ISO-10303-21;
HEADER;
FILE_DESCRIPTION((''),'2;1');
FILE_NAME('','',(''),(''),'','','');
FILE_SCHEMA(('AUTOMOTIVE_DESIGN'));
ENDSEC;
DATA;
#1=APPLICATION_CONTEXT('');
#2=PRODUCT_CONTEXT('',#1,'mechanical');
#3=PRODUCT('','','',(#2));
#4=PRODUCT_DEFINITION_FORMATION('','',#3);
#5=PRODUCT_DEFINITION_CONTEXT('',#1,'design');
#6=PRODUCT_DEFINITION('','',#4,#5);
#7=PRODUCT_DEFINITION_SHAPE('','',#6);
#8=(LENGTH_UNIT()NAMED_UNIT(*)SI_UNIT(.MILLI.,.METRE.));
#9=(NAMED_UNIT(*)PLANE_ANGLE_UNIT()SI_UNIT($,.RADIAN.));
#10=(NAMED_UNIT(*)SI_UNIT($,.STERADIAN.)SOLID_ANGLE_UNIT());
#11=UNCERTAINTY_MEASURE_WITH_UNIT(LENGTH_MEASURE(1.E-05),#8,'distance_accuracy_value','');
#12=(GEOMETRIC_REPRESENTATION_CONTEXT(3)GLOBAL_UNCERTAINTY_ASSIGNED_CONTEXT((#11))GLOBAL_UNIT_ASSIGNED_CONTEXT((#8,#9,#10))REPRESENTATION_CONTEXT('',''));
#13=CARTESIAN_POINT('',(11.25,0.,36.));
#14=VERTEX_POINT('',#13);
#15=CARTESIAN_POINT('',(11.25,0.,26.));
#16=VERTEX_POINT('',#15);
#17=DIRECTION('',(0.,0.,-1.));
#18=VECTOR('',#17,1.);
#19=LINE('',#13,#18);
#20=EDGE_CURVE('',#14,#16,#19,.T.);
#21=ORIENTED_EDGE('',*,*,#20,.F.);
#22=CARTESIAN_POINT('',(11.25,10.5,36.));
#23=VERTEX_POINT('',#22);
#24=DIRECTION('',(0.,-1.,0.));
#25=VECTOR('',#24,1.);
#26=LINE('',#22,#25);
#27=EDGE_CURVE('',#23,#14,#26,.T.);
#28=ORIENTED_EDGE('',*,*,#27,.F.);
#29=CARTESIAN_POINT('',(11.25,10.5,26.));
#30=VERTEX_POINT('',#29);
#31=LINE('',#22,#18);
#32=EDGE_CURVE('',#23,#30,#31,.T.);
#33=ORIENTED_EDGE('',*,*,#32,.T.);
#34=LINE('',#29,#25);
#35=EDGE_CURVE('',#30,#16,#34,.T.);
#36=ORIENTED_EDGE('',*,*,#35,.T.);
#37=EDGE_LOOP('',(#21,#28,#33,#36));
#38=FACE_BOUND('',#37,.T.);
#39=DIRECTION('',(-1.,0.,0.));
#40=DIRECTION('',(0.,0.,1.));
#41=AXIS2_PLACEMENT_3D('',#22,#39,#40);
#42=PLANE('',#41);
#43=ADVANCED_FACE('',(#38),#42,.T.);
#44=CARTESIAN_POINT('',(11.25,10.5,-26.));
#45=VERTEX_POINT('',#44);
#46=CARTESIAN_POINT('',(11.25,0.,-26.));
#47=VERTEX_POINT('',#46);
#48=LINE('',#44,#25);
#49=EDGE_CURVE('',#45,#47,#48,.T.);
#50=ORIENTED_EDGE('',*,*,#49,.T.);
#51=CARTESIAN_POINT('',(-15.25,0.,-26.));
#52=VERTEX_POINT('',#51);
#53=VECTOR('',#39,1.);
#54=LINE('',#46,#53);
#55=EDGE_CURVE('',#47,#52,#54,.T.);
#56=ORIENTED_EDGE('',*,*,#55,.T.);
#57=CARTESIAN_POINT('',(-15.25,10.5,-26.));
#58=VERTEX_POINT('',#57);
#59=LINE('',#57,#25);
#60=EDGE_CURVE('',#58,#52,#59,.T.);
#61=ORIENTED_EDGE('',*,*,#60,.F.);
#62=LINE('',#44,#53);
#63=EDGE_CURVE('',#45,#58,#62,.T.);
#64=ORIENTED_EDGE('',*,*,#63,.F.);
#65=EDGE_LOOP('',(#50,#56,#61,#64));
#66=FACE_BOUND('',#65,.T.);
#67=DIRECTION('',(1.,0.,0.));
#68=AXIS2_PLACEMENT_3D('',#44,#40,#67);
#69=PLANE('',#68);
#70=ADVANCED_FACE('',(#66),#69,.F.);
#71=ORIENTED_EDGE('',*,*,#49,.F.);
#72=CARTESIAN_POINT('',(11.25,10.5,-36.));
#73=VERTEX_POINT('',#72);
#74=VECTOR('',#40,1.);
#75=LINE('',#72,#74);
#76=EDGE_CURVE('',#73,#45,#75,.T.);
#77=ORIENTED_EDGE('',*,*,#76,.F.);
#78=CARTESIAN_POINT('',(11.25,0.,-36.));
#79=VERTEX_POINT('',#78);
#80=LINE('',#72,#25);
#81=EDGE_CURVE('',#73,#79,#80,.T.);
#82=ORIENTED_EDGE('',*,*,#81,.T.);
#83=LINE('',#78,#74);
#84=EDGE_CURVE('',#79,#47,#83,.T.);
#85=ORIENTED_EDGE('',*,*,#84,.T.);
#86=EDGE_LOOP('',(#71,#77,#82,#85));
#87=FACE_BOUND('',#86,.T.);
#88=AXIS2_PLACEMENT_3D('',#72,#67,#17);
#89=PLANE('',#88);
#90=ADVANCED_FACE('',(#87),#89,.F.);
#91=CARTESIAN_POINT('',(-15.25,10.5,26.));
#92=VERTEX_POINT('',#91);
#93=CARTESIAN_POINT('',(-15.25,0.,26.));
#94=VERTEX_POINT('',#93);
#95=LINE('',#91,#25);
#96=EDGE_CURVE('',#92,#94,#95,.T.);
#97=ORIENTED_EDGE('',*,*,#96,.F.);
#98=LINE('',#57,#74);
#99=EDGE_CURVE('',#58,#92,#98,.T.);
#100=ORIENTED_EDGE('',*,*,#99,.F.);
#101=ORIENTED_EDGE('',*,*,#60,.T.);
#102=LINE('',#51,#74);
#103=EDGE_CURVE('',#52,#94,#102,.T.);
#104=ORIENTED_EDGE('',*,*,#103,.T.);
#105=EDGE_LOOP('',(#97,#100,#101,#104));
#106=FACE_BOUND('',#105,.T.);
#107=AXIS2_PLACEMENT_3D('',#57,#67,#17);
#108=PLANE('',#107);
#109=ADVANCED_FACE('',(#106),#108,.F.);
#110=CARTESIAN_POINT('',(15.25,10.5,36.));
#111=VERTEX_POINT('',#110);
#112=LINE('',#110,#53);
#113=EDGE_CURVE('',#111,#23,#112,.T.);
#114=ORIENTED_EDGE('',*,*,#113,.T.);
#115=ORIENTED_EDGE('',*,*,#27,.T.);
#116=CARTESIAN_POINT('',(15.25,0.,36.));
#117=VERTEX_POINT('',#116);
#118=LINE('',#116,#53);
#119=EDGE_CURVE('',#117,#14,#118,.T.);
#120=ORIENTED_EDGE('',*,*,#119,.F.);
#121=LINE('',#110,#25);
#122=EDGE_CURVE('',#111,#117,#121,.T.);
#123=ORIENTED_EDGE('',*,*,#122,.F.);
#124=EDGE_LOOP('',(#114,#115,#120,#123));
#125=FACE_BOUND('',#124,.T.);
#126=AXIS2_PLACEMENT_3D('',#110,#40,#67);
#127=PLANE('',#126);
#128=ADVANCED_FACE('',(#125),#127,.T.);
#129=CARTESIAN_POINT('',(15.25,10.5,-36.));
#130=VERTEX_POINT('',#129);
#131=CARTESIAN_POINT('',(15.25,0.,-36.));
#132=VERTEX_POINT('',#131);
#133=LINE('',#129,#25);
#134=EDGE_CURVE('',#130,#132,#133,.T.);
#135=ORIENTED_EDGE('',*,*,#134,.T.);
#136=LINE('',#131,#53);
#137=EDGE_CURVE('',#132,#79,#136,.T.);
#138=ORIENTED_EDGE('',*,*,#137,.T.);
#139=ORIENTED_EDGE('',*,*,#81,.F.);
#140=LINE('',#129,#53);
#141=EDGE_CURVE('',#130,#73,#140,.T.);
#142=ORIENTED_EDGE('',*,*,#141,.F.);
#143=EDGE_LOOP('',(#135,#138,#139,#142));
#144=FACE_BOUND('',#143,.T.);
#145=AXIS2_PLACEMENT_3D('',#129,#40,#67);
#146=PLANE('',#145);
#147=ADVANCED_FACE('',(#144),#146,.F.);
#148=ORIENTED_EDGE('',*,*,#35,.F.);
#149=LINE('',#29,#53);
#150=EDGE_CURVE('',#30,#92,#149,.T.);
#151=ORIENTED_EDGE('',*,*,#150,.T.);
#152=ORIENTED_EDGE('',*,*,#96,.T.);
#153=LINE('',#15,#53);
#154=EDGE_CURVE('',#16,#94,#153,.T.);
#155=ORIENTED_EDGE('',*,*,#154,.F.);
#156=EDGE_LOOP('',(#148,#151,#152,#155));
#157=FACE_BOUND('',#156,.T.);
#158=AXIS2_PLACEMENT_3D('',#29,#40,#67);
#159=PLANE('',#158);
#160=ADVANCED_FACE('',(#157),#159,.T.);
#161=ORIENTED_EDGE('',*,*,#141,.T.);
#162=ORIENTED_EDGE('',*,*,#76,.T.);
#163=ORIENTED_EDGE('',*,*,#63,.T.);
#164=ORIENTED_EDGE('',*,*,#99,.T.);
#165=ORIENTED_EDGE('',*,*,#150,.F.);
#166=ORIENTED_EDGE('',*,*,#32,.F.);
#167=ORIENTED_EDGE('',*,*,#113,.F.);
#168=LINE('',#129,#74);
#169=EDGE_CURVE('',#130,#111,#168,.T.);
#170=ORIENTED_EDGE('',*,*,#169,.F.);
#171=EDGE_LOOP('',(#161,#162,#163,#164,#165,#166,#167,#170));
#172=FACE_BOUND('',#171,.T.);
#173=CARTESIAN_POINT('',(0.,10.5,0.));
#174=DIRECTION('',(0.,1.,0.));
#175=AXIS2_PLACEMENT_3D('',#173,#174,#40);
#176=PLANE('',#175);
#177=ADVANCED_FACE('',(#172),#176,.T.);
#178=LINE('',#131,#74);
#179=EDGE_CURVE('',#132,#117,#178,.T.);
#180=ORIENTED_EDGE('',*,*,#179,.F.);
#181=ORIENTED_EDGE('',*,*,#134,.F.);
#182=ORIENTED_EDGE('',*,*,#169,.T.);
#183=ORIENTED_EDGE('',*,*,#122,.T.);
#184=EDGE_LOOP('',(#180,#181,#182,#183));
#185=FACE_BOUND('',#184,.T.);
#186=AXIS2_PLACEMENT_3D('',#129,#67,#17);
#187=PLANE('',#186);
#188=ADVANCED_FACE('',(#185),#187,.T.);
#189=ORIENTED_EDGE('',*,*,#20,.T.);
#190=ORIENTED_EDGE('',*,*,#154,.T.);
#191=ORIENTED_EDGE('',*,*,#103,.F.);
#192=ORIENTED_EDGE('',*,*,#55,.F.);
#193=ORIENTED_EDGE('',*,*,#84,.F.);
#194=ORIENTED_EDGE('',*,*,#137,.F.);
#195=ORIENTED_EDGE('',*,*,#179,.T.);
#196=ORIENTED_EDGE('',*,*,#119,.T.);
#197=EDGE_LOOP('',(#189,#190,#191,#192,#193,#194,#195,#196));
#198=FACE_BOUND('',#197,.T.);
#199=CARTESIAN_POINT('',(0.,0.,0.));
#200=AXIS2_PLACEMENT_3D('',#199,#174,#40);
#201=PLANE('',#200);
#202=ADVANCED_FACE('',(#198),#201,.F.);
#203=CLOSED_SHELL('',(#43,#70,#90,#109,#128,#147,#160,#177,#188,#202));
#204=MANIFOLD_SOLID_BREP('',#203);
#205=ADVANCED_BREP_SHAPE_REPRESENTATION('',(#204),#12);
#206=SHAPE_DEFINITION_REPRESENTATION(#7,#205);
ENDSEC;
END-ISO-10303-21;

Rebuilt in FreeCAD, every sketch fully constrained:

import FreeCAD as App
import Part
import Sketcher


def add_polygon(sketch, points):
    """Adds a closed chain of lines whose ends are joined by coincident constraints."""
    first, n = sketch.GeometryCount, len(points)
    for a, b in zip(points, points[1:] + points[:1]):
        sketch.addGeometry(Part.LineSegment(App.Vector(*a, 0), App.Vector(*b, 0)), False)
    for i in range(n):
        sketch.addConstraint(Sketcher.Constraint("Coincident", first + i, 2, first + (i + 1) % n, 1))

doc = App.newDocument("Part")
body = doc.addObject("PartDesign::Body", "Body")

# Sketch on XZ plane
sketch1 = body.newObject("Sketcher::SketchObject", "Sketch")
sketch1.AttachmentSupport = (doc.getObject("XZ_Plane"), [""])
sketch1.MapMode = "FlatFace"
add_polygon(sketch1, [(15.2, 36), (15.2, -36), (11.2, -36), (11.2, -26), (-15.2, -26), (-15.2, 26), (11.2, 26), (11.2, 36)])  # lines 0-7
sketch1.addConstraint([
    Sketcher.Constraint("Vertical", 0),
    Sketcher.Constraint("Horizontal", 1),
    Sketcher.Constraint("Vertical", 2),
    Sketcher.Constraint("Horizontal", 3),
    Sketcher.Constraint("Vertical", 4),
    Sketcher.Constraint("Horizontal", 5),
    Sketcher.Constraint("Vertical", 6),
    Sketcher.Constraint("Horizontal", 7),
    Sketcher.Constraint("Symmetric", 2, 2, 5, 2, -1),
    Sketcher.Constraint("Equal", 2, 6),
    Sketcher.Constraint("DistanceX", 1, 2, 1, 1, 4.0),
    Sketcher.Constraint("DistanceY", 0, 2, 0, 1, 72.0),
    Sketcher.Constraint("DistanceY", 2, 1, 2, 2, 10.0),
    Sketcher.Constraint("DistanceX", 3, 2, 3, 1, 26.5),
    Sketcher.Constraint("DistanceX", -1, 1, 0, 2, 15.25),
])
pad1 = body.newObject("PartDesign::Pad", "Pad")
pad1.Profile = sketch1
pad1.Length = 10.5
pad1.Reversed = True

doc.recompute()
